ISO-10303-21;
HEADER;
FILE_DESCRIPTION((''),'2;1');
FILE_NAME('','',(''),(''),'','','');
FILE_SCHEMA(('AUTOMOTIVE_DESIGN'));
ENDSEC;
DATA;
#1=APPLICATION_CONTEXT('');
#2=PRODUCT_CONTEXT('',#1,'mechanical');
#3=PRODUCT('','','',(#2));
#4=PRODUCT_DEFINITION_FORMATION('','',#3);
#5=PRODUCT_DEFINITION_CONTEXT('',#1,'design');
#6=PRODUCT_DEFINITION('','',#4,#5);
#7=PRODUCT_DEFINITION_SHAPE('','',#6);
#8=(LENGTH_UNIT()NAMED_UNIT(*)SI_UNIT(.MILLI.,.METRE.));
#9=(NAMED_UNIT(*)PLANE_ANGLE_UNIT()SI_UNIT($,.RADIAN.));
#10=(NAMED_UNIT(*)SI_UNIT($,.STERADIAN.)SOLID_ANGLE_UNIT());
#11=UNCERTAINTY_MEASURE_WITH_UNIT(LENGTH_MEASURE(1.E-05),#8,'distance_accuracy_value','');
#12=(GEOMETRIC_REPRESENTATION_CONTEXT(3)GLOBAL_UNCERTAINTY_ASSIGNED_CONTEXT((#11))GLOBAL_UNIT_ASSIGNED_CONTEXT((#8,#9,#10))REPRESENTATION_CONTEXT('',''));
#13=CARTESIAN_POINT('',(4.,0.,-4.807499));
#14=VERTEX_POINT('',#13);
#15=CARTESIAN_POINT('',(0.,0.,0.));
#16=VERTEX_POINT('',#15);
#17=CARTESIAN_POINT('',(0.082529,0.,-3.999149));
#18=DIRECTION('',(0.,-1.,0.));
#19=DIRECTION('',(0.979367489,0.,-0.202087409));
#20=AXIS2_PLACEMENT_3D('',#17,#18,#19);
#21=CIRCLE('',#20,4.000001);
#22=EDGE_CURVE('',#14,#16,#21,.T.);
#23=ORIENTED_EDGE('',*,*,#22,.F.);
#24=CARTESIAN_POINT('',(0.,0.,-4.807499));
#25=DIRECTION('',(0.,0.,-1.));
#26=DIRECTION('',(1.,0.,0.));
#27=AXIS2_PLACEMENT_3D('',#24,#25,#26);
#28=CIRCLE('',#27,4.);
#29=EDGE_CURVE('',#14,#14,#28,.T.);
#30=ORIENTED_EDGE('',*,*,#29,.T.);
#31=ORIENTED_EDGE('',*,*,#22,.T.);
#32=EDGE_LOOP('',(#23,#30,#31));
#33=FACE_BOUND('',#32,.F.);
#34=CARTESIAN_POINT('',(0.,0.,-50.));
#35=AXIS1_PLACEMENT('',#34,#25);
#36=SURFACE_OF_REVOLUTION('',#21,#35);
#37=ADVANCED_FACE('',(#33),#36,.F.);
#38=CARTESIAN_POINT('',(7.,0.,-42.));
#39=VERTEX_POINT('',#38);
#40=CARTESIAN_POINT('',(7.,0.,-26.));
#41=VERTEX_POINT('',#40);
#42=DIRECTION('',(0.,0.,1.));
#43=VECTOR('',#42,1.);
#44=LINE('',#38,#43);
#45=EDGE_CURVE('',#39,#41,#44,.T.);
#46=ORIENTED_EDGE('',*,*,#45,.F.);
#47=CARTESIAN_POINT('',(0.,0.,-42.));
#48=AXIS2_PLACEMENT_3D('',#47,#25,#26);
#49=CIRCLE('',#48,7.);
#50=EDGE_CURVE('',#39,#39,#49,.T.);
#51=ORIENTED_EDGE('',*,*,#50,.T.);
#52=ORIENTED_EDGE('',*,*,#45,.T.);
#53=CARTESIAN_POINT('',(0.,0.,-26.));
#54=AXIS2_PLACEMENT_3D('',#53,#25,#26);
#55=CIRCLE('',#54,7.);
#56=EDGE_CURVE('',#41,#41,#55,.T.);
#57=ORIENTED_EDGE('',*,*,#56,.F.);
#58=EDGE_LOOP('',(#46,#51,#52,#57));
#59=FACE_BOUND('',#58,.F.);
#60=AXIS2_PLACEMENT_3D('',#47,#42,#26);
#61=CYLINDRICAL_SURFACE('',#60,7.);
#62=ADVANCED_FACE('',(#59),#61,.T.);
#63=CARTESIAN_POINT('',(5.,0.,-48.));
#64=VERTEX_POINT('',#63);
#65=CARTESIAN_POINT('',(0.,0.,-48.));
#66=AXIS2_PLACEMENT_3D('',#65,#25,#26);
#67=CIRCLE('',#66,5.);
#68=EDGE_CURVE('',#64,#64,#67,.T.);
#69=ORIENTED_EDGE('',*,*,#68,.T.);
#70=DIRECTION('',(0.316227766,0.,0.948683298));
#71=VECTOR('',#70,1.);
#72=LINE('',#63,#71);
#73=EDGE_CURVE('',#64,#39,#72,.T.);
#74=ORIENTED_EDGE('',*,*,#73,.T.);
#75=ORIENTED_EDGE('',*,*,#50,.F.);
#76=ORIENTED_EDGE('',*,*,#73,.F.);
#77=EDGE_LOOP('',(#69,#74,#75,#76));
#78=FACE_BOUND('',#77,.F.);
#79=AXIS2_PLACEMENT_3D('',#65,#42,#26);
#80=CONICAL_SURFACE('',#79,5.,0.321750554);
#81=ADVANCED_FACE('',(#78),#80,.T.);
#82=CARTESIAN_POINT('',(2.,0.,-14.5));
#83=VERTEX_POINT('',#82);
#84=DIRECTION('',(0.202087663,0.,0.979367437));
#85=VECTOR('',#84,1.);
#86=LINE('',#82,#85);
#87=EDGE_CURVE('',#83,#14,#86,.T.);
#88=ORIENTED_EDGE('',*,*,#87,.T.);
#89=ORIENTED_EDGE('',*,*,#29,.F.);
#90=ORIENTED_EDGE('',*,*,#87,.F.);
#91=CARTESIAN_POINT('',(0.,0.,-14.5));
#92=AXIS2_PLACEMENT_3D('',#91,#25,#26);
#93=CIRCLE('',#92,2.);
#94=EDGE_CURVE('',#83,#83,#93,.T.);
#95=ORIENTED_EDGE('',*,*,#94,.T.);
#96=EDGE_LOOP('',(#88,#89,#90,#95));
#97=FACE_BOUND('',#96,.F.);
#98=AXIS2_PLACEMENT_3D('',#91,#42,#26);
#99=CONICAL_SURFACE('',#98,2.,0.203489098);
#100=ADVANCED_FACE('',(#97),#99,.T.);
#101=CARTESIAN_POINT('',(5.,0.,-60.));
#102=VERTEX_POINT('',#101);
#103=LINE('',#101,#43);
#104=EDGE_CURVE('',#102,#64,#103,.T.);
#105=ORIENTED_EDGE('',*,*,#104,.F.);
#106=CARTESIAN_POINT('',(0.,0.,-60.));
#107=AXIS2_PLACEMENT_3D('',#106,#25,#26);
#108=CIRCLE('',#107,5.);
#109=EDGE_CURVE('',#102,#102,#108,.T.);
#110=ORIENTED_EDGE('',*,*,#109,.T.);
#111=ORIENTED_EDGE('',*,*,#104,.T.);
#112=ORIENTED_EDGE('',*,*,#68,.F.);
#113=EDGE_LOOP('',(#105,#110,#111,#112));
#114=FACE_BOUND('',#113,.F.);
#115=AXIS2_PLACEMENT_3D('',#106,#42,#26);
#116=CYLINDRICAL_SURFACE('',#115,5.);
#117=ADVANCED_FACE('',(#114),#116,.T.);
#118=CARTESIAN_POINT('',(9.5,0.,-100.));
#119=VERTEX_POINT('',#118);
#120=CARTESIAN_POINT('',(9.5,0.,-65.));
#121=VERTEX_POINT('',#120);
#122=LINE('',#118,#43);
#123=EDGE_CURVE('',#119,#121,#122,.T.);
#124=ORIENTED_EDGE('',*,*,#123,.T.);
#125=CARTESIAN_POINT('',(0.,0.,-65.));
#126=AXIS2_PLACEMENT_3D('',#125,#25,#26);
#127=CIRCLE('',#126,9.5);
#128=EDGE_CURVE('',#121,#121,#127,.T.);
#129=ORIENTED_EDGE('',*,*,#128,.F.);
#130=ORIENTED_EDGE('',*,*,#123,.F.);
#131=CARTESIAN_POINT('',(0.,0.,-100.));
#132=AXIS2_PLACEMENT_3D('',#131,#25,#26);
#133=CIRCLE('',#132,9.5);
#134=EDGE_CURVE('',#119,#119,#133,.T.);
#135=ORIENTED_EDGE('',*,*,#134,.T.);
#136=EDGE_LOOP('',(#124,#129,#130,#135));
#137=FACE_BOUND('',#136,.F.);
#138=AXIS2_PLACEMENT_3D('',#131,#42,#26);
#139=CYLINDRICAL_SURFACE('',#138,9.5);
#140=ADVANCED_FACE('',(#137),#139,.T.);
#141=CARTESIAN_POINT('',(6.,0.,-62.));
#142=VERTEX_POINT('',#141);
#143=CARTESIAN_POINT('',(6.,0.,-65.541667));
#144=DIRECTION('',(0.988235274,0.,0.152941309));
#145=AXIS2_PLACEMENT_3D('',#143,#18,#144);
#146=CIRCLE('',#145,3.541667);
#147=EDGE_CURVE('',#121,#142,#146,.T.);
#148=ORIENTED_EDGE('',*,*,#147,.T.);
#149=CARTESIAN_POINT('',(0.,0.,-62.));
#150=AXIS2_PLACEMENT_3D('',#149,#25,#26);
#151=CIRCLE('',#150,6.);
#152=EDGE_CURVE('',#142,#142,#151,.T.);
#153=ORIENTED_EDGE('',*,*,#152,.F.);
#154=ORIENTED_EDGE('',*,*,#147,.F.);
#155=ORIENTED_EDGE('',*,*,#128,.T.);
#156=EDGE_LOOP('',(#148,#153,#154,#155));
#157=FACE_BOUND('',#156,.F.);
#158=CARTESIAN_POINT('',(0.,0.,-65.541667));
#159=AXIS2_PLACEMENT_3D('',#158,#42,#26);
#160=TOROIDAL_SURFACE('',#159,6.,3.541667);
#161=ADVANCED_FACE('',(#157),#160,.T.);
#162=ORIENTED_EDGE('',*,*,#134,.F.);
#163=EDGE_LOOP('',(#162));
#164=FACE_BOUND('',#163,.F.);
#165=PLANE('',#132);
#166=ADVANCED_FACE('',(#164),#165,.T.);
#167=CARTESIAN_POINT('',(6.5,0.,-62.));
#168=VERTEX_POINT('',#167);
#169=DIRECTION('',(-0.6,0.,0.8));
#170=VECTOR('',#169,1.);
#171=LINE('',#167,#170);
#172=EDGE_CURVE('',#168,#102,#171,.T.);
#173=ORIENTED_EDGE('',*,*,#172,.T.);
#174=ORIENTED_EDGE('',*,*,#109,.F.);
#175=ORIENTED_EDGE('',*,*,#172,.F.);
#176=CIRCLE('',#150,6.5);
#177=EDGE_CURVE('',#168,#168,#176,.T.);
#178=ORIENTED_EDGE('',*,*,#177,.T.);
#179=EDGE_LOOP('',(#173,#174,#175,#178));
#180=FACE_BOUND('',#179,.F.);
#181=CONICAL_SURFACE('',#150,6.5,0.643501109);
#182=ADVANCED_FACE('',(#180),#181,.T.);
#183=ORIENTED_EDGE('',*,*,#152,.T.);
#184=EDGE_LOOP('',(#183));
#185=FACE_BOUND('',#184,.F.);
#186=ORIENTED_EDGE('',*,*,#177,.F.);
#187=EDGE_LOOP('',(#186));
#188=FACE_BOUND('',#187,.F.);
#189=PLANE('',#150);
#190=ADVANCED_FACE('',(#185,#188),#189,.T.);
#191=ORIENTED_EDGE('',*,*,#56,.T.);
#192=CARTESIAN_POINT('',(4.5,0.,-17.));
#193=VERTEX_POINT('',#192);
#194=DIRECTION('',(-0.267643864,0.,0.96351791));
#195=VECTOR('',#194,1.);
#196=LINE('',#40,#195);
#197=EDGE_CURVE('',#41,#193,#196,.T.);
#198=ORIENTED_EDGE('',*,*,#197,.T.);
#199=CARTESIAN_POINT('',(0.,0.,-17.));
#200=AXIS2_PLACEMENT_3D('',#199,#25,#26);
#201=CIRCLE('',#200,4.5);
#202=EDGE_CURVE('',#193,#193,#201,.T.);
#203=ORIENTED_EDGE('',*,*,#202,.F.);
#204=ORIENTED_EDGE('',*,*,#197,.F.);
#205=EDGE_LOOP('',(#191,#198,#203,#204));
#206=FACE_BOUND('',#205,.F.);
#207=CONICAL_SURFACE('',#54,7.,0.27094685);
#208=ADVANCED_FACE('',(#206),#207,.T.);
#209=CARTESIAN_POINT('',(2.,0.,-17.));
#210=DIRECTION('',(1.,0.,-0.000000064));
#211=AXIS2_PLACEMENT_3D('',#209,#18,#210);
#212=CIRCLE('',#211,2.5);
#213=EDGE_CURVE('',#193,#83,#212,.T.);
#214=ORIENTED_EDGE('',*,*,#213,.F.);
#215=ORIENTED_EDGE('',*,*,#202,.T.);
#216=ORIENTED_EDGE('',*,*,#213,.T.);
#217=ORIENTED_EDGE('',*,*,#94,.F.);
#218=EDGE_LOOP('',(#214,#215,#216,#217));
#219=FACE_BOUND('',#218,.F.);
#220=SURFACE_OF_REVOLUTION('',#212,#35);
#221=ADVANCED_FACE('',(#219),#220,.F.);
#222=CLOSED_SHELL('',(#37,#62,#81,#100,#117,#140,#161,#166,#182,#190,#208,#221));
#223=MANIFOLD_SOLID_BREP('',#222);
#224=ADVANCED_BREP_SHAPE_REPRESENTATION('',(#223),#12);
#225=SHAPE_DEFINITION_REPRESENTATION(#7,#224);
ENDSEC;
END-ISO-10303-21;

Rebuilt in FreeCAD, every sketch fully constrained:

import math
import FreeCAD as App
import Part
import Sketcher
from FreeCAD import Vector
Q = App.Units.Quantity

doc = App.newDocument("Part")
body = doc.addObject("PartDesign::Body", "Body")

sketch1 = body.newObject("Sketcher::SketchObject", "Sketch")
sketch1.AttachmentSupport = (doc.getObject("XZ_Plane"), [""])
sketch1.MapMode = "FlatFace"
sketch1.addGeometry([
    Part.LineSegment(Vector(2, -14.5, 0), Vector(4, -4.807499, 0)),
    Part.ArcOfCircle(Part.Circle(Vector(0.082529, -3.999149, 0), Vector(0, 0, 1), 4.000001), math.radians(-11.659052), math.radians(91.18223)),
    Part.LineSegment(Vector(0, 0, 0), Vector(0, -100, 0)),
    Part.LineSegment(Vector(0, -100, 0), Vector(9.5, -100, 0)),
    Part.LineSegment(Vector(9.5, -100, 0), Vector(9.5, -65, 0)),
    Part.ArcOfCircle(Part.Circle(Vector(6, -65.541667, 0), Vector(0, 0, 1), 3.541667), math.radians(8.797418), math.radians(89.999992)),
    Part.LineSegment(Vector(6, -62, 0), Vector(6.5, -62, 0)),
    Part.LineSegment(Vector(6.5, -62, 0), Vector(5, -60, 0)),
    Part.LineSegment(Vector(5, -60, 0), Vector(5, -48, 0)),
    Part.LineSegment(Vector(5, -48, 0), Vector(7, -42, 0)),
    Part.LineSegment(Vector(7, -42, 0), Vector(7, -26, 0)),
    Part.LineSegment(Vector(7, -26, 0), Vector(4.5, -17, 0)),
    Part.ArcOfCircle(Part.Circle(Vector(2, -17, 0), Vector(0, 0, 1), 2.5), math.radians(-0.000004), math.radians(90.000004)),
], False)
sketch1.addConstraint([
    Sketcher.Constraint("Tangent", 0, 2, 1, 1),
    Sketcher.Constraint("Coincident", 1, 2, 2, 1),
    Sketcher.Constraint("Coincident", 2, 2, 3, 1),
    Sketcher.Constraint("Coincident", 3, 2, 4, 1),
    Sketcher.Constraint("Coincident", 4, 2, 5, 1),
    Sketcher.Constraint("Tangent", 5, 2, 6, 1),
    Sketcher.Constraint("Coincident", 6, 2, 7, 1),
    Sketcher.Constraint("Coincident", 7, 2, 8, 1),
    Sketcher.Constraint("Coincident", 8, 2, 9, 1),
    Sketcher.Constraint("Coincident", 9, 2, 10, 1),
    Sketcher.Constraint("Coincident", 10, 2, 11, 1),
    Sketcher.Constraint("Coincident", 11, 2, 12, 1),
    Sketcher.Constraint("Coincident", 12, 2, 0, 1),
    Sketcher.Constraint("Vertical", 2),
    Sketcher.Constraint("Horizontal", 3),
    Sketcher.Constraint("Vertical", 4),
    Sketcher.Constraint("Horizontal", 6),
    Sketcher.Constraint("Vertical", 8),
    Sketcher.Constraint("Vertical", 10),
    Sketcher.Constraint("Coincident", 1, 2, -1, 1),
    Sketcher.Constraint("Horizontal", 12, 3, 11, 2),
    Sketcher.Constraint("Radius", 1, Q("4.000001 mm")),
    Sketcher.Constraint("Radius", 12, Q("2.5 mm")),
    Sketcher.Constraint("DistanceY", 2, 2, 2, 1, Q("100 mm")),
    Sketcher.Constraint("DistanceY", 4, 1, 4, 2, Q("35 mm")),
    Sketcher.Constraint("DistanceY", 8, 1, 8, 2, Q("12 mm")),
    Sketcher.Constraint("DistanceY", 10, 1, 10, 2, Q("16 mm")),
    Sketcher.Constraint("DistanceX", 3, 1, 3, 2, Q("9.5 mm")),
    Sketcher.Constraint("DistanceX", 6, 1, 6, 2, Q("0.5 mm")),
    Sketcher.Constraint("DistanceX", -1, 1, 5, 3, Q("6 mm")),
    Sketcher.Constraint("DistanceX", -1, 1, 12, 3, Q("2 mm")),
    Sketcher.Constraint("DistanceY", 12, 3, -1, 1, Q("17 mm")),
    Sketcher.Constraint("DistanceX", -1, 1, 0, 2, Q("4 mm")),
    Sketcher.Constraint("DistanceY", 5, 2, -1, 1, Q("62 mm")),
    Sketcher.Constraint("DistanceX", -1, 1, 7, 2, Q("5 mm")),
    Sketcher.Constraint("DistanceY", 7, 2, -1, 1, Q("60 mm")),
    Sketcher.Constraint("DistanceX", -1, 1, 9, 2, Q("7 mm")),
    Sketcher.Constraint("DistanceY", 9, 2, -1, 1, Q("42 mm")),
    Sketcher.Constraint("DistanceX", -1, 1, 12, 2, Q("2 mm")),
])
revolution = body.newObject("PartDesign::Revolution", "Revolution")
revolution.Profile = sketch1
revolution.ReferenceAxis = (sketch1, ["V_Axis"])
revolution.Angle = 360

doc.recompute()
